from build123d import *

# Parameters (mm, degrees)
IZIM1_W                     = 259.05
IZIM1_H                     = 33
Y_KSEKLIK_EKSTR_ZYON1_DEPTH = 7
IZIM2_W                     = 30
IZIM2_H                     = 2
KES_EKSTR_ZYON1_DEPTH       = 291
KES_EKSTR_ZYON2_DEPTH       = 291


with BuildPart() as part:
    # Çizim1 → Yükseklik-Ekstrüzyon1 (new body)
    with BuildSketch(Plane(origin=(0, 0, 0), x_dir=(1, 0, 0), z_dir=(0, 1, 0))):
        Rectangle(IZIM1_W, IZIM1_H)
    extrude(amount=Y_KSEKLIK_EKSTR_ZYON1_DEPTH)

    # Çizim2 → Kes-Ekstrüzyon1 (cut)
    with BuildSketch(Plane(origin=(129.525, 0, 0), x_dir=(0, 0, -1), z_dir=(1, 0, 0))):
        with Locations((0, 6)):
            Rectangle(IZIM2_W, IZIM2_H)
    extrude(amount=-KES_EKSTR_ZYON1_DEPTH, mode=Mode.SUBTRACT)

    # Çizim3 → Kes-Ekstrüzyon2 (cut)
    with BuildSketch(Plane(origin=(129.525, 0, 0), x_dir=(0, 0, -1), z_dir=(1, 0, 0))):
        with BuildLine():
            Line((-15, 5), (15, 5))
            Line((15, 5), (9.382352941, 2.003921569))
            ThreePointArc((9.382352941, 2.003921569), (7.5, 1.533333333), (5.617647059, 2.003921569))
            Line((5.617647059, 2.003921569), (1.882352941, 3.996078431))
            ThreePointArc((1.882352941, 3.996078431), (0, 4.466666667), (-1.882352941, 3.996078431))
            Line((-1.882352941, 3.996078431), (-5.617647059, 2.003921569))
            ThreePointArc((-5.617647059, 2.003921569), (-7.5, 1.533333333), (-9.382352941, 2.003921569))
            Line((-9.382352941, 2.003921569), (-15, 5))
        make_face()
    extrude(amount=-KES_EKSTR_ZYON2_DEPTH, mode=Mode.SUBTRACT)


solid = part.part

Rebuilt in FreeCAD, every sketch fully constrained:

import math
import FreeCAD as App
import Part
import Sketcher
Q = App.Units.Quantity


def add_polygon(sketch, points):
    """Adds a closed chain of lines whose ends are joined by coincident constraints."""
    first, n = sketch.GeometryCount, len(points)
    for a, b in zip(points, points[1:] + points[:1]):
        sketch.addGeometry(Part.LineSegment(App.Vector(*a, 0), App.Vector(*b, 0)), False)
    for i in range(n):
        sketch.addConstraint(Sketcher.Constraint("Coincident", first + i, 2, first + (i + 1) % n, 1))

doc = App.newDocument("Part")
body = doc.addObject("PartDesign::Body", "Body")

# Sketch on XZ plane
sketch1 = doc.addObject("Sketcher::SketchObject", "Sketch")
body.addObject(sketch1)
sketch1.AttachmentSupport = (doc.XZ_Plane, [""])
sketch1.MapMode = "FlatFace"
add_polygon(sketch1, [(-130, -16), (-130, 16), (130, 16), (130, -16)])  # lines 0-3
sketch1.addConstraint([
    Sketcher.Constraint("Vertical", 0),
    Sketcher.Constraint("Horizontal", 1),
    Sketcher.Constraint("Vertical", 2),
    Sketcher.Constraint("Horizontal", 3),
    Sketcher.Constraint("Symmetric", 0, 2, 2, 2, -1, 1),
    Sketcher.Constraint("DistanceY", 0, 1, 0, 2, Q("33 mm")),
    Sketcher.Constraint("DistanceX", 1, 1, 1, 2, Q("259.05 mm")),
])
pad1 = doc.addObject("PartDesign::Pad", "Pad")
body.addObject(pad1)
pad1.Profile = sketch1
pad1.Length = 7
pad1.Reversed = True

# Sketch on YZ plane
sketch2 = doc.addObject("Sketcher::SketchObject", "Sketch001")
body.addObject(sketch2)
sketch2.AttachmentSupport = (doc.YZ_Plane, [""])
sketch2.MapMode = "FlatFace"
sketch2.AttachmentOffset = App.Placement(App.Vector(0, 0, 129.525), App.Rotation())
add_polygon(sketch2, [(7, 15), (5, 15), (5, -15), (7, -15)])  # lines 0-3
sketch2.addConstraint([
    Sketcher.Constraint("Horizontal", 0),
    Sketcher.Constraint("Vertical", 1),
    Sketcher.Constraint("Horizontal", 2),
    Sketcher.Constraint("Vertical", 3),
    Sketcher.Constraint("DistanceX", 0, 2, 0, 1, Q("2 mm")),
    Sketcher.Constraint("DistanceY", 1, 2, 1, 1, Q("30 mm")),
    Sketcher.Constraint("DistanceX", -1, 1, 0, 2, Q("5 mm")),
    Sketcher.Constraint("DistanceY", -1, 1, 0, 2, Q("15 mm")),
])
pocket1 = doc.addObject("PartDesign::Pocket", "Pocket")
body.addObject(pocket1)
pocket1.Profile = sketch2
pocket1.Length = 291

# Sketch on YZ plane
sketch3 = doc.addObject("Sketcher::SketchObject", "Sketch002")
body.addObject(sketch3)
sketch3.AttachmentSupport = (doc.YZ_Plane, [""])
sketch3.MapMode = "FlatFace"
sketch3.AttachmentOffset = App.Placement(App.Vector(0, 0, 129.525), App.Rotation())
sketch3.addGeometry([
    Part.LineSegment(App.Vector(5, -15, 0), App.Vector(5, 15, 0)),  # 0
    Part.LineSegment(App.Vector(5, 15, 0), App.Vector(2, 9.4, 0)),  # 1
    Part.ArcOfCircle(Part.Circle(App.Vector(5.5, 7.5, 0), App.Vector(0, 0, 1), 4), math.radians(152), math.radians(208)),  # 2
    Part.LineSegment(App.Vector(2, 5.6, 0), App.Vector(4, 1.9, 0)),  # 3
    Part.ArcOfCircle(Part.Circle(App.Vector(0.5, 0, 0), App.Vector(0, 0, 1), 4), math.radians(-28), math.radians(28)),  # 4
    Part.LineSegment(App.Vector(4, -1.9, 0), App.Vector(2, -5.6, 0)),  # 5
    Part.ArcOfCircle(Part.Circle(App.Vector(5.5, -7.5, 0), App.Vector(0, 0, 1), 4), math.radians(152), math.radians(208)),  # 6
    Part.LineSegment(App.Vector(2, -9.4, 0), App.Vector(5, -15, 0)),  # 7
], False)
sketch3.addConstraint([
    Sketcher.Constraint("Coincident", 0, 2, 1, 1),
    Sketcher.Constraint("Tangent", 1, 2, 2, 1),
    Sketcher.Constraint("Tangent", 2, 2, 3, 1),
    Sketcher.Constraint("Tangent", 3, 2, 4, 2),
    Sketcher.Constraint("Tangent", 4, 1, 5, 1),
    Sketcher.Constraint("Tangent", 5, 2, 6, 1),
    Sketcher.Constraint("Tangent", 6, 2, 7, 1),
    Sketcher.Constraint("Coincident", 7, 2, 0, 1),
    Sketcher.Constraint("Vertical", 0),
    Sketcher.Constraint("Equal", 2, 4),
    Sketcher.Constraint("Equal", 4, 6),
    Sketcher.Constraint("Symmetric", 2, 3, 6, 3, -1),
    Sketcher.Constraint("PointOnObject", 4, 3, -1),
    Sketcher.Constraint("Parallel", 1, 5),
    Sketcher.Constraint("Parallel", 3, 7),
    Sketcher.Constraint("Radius", 2, Q("4 mm")),
    Sketcher.Constraint("DistanceY", 0, 1, 0, 2, Q("30 mm")),
    Sketcher.Constraint("DistanceX", -1, 1, 0, 2, Q("5 mm")),
    Sketcher.Constraint("DistanceY", 6, 3, 2, 3, Q("15 mm")),
    Sketcher.Constraint("DistanceX", -1, 1, 1, 2, Q("2.003922 mm")),
])
pocket2 = doc.addObject("PartDesign::Pocket", "Pocket001")
body.addObject(pocket2)
pocket2.Profile = sketch3
pocket2.Length = 291

doc.recompute()
